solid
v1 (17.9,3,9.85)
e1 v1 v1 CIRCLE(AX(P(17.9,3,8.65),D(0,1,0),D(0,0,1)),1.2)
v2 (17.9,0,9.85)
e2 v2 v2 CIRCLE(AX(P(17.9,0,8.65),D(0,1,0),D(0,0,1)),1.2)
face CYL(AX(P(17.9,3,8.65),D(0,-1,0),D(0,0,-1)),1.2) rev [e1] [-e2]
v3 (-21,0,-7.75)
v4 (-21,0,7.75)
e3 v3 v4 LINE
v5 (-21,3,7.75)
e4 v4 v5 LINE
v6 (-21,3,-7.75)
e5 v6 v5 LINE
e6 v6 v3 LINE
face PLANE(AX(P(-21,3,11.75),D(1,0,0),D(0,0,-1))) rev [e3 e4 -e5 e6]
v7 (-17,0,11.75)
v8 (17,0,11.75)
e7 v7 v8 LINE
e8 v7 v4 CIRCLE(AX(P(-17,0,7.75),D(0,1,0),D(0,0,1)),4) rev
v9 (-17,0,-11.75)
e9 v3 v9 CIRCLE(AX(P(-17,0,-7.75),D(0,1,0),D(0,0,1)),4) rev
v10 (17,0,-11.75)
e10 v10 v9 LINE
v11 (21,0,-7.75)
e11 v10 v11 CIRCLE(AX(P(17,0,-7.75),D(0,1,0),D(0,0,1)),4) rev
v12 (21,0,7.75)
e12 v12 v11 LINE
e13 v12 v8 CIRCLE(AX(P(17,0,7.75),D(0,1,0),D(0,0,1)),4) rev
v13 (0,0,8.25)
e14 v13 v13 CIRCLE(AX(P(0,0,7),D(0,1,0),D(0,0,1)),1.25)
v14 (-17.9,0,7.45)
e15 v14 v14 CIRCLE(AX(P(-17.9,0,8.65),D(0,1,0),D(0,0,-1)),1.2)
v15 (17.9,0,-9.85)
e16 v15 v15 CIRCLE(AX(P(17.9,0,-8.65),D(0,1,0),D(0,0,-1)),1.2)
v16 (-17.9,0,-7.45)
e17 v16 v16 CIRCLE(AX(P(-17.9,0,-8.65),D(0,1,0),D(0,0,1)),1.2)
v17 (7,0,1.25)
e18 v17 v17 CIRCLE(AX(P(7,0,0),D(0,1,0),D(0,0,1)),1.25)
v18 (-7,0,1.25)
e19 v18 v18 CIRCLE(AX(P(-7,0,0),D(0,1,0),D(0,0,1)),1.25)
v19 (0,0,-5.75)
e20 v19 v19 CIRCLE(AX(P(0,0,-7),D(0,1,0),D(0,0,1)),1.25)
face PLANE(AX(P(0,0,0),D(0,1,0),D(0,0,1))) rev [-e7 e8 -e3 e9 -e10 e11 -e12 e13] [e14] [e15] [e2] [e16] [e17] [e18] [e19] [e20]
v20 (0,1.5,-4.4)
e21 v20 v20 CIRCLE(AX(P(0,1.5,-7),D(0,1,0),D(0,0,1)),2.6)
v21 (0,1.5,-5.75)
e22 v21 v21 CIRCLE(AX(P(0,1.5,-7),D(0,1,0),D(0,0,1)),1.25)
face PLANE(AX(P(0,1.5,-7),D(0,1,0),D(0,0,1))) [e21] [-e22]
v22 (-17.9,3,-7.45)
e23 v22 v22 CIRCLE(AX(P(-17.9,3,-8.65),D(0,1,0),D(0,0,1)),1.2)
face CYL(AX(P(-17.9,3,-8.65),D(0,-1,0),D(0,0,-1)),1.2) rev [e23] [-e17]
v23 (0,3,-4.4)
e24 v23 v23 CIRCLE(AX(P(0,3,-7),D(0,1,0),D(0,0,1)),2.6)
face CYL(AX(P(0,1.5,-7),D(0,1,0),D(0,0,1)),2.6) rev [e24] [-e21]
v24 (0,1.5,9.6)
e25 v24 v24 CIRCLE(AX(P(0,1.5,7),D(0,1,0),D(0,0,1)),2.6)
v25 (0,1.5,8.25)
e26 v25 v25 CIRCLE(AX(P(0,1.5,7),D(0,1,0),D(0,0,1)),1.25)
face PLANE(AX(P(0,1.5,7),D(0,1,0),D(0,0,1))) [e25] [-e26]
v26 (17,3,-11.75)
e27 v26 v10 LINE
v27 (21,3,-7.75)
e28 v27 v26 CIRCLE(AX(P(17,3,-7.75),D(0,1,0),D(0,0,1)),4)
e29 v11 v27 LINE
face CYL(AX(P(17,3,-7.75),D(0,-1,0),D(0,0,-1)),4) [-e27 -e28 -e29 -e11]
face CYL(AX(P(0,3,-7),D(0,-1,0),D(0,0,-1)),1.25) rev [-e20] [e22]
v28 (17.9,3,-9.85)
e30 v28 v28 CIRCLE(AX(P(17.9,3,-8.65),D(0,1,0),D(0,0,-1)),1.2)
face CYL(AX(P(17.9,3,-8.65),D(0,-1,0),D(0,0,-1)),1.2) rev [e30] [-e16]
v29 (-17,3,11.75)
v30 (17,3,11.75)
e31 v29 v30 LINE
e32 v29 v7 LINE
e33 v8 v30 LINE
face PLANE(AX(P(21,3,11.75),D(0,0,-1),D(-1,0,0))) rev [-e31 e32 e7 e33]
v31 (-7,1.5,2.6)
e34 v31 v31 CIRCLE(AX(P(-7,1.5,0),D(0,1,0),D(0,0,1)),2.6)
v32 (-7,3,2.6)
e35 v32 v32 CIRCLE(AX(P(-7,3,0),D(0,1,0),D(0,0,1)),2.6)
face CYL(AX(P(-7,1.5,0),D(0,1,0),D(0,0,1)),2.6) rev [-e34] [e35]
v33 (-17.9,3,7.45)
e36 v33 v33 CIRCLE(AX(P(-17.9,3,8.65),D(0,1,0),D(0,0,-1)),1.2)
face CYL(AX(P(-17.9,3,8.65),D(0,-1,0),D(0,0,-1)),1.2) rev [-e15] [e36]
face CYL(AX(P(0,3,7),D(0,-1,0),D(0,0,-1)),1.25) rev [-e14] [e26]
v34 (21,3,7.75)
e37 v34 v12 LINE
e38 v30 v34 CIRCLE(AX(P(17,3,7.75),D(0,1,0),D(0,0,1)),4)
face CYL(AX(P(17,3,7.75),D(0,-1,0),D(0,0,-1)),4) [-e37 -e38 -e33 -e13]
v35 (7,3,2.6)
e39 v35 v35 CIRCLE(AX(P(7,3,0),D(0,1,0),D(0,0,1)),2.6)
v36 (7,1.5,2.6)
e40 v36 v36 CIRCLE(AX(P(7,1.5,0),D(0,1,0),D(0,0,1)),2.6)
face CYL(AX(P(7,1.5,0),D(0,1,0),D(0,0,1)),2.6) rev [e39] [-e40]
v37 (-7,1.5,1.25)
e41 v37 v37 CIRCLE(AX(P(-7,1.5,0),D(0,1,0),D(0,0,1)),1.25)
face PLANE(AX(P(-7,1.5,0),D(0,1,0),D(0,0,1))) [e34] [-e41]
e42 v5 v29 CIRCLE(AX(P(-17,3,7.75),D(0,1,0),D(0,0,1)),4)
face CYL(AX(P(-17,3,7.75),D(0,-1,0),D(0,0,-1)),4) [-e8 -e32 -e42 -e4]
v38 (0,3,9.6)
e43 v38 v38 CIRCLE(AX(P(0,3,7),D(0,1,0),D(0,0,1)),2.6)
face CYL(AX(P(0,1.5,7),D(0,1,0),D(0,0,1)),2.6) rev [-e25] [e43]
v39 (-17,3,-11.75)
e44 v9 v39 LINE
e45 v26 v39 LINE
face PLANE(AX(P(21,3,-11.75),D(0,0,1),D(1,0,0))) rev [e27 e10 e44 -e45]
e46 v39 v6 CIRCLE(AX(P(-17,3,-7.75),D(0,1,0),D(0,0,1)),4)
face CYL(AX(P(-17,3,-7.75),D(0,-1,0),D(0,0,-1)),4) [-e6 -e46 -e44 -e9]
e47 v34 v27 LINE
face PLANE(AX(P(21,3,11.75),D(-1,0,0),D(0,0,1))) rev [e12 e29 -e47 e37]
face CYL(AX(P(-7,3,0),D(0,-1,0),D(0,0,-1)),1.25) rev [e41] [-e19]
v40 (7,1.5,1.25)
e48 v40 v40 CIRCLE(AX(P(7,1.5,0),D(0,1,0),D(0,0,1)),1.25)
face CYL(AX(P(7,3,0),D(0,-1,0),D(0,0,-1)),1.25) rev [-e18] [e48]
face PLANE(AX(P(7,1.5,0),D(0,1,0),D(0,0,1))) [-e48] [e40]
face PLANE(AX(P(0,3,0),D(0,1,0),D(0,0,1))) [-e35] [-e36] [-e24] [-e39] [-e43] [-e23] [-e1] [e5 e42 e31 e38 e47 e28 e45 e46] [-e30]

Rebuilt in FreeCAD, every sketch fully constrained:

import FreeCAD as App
import Part
import Sketcher
Q = App.Units.Quantity


def edges_at(feature, points):
    """Names of the edges that pass closest to the given points."""
    edges = feature.Shape.Edges
    near = lambda p: min(range(len(edges)), key=lambda i: edges[i].distToShape(Part.Vertex(*p))[0])
    return sorted({f"Edge{near(p) + 1}" for p in points})

doc = App.newDocument("Part")
params = doc.addObject("Spreadsheet::Sheet", "Params")
for row, (alias, value) in enumerate([
    ("sketch1_diameter", "2.4 mm"),
    ("sketch1_diameter2", "2.5 mm"),
    ("sketch1_width", "42 mm"),
    ("sketch1_height", "23.5 mm"),
    ("pad1_length", "3 mm"),
    ("fillet_radius", "4 mm"),
    ("sketch2_diameter", "5.2 mm"),
    ("pocket1_length", "1.5 mm"),
], start=1):
    params.set(f"A{row}", alias)
    params.set(f"B{row}", "=" + value)
    params.setAlias(f"B{row}", alias)

body = doc.addObject("PartDesign::Body", "Body")

# Sketch on XZ plane
sketch1 = body.newObject("Sketcher::SketchObject", "Sketch")
sketch1.AttachmentSupport = (doc.getObject("XZ_Plane"), [""])
sketch1.MapMode = "FlatFace"
sketch1.addGeometry([
    Part.LineSegment(App.Vector(-21, -11.75, 0), App.Vector(-21, 11.75, 0)),  # 0
    Part.LineSegment(App.Vector(-21, 11.75, 0), App.Vector(21, 11.75, 0)),  # 1
    Part.LineSegment(App.Vector(21, 11.75, 0), App.Vector(21, -11.75, 0)),  # 2
    Part.LineSegment(App.Vector(21, -11.75, 0), App.Vector(-21, -11.75, 0)),  # 3
    Part.Circle(App.Vector(-17.9, 8.65, 0), App.Vector(0, 0, 1), 1.2),  # 4
    Part.Circle(App.Vector(0, 7, 0), App.Vector(0, 0, 1), 1.25),  # 5
    Part.Circle(App.Vector(17.9, 8.65, 0), App.Vector(0, 0, 1), 1.2),  # 6
    Part.Circle(App.Vector(-7, 0, 0), App.Vector(0, 0, 1), 1.25),  # 7
    Part.Circle(App.Vector(-17.9, -8.65, 0), App.Vector(0, 0, 1), 1.2),  # 8
    Part.Circle(App.Vector(7, 0, 0), App.Vector(0, 0, 1), 1.25),  # 9
    Part.Circle(App.Vector(0, -7, 0), App.Vector(0, 0, 1), 1.25),  # 10
    Part.Circle(App.Vector(17.9, -8.65, 0), App.Vector(0, 0, 1), 1.2),  # 11
], False)
sketch1.addConstraint([
    Sketcher.Constraint("Coincident", 0, 2, 1, 1),
    Sketcher.Constraint("Coincident", 1, 2, 2, 1),
    Sketcher.Constraint("Coincident", 2, 2, 3, 1),
    Sketcher.Constraint("Coincident", 3, 2, 0, 1),
    Sketcher.Constraint("Vertical", 0),
    Sketcher.Constraint("Horizontal", 1),
    Sketcher.Constraint("Vertical", 2),
    Sketcher.Constraint("Horizontal", 3),
    Sketcher.Constraint("Equal", 4, 6),
    Sketcher.Constraint("Equal", 5, 7),
    Sketcher.Constraint("Equal", 6, 8),
    Sketcher.Constraint("Equal", 7, 9),
    Sketcher.Constraint("Equal", 9, 10),
    Sketcher.Constraint("Equal", 8, 11),
    Sketcher.Constraint("Symmetric", 6, 3, 8, 3, -1, 1),
    Sketcher.Constraint("Symmetric", 7, 3, 9, 3, -1, 1),
    Sketcher.Constraint("Symmetric", 5, 3, 10, 3, -1, 1),
    Sketcher.Constraint("Symmetric", 4, 3, 11, 3, -1, 1),
    Sketcher.Constraint("Symmetric", 0, 2, 2, 2, -1, 1),
    Sketcher.Constraint("Symmetric", 4, 3, 6, 3, -2),
    Sketcher.Constraint("PointOnObject", 5, 3, -2),
    Sketcher.Constraint("PointOnObject", 7, 3, -1),
    Sketcher.Constraint("Diameter", 4, Q("2.4 mm")),
    Sketcher.Constraint("Diameter", 5, Q("2.5 mm")),
    Sketcher.Constraint("DistanceX", 1, 1, 1, 2, Q("42 mm")),
    Sketcher.Constraint("DistanceY", 0, 1, 0, 2, Q("23.5 mm")),
    Sketcher.Constraint("DistanceY", -1, 1, 5, 3, Q("7 mm")),
    Sketcher.Constraint("DistanceX", 7, 3, -1, 1, Q("7 mm")),
    Sketcher.Constraint("DistanceX", 4, 3, -1, 1, Q("17.9 mm")),
    Sketcher.Constraint("DistanceY", 8, 3, 4, 3, Q("17.3 mm")),
])
sketch1.setExpression("Constraints[22]", "Params.sketch1_diameter")
sketch1.setExpression("Constraints[23]", "Params.sketch1_diameter2")
sketch1.setExpression("Constraints[24]", "Params.sketch1_width")
sketch1.setExpression("Constraints[25]", "Params.sketch1_height")
pad1 = body.newObject("PartDesign::Pad", "Pad")
pad1.Profile = sketch1
pad1.setExpression("Length", "Params.pad1_length")
pad1.Reversed = True
doc.recompute()

fillet = body.newObject("PartDesign::Fillet", "Fillet")
fillet.Base = (pad1, edges_at(pad1, [
    (-21, 1.5, -11.75),
    (21, 1.5, -11.75),
    (21, 1.5, 11.75),
    (-21, 1.5, 11.75),
]))
fillet.setExpression("Radius", "Params.fillet_radius")

# Sketch on XZ plane
sketch2 = body.newObject("Sketcher::SketchObject", "Sketch001")
sketch2.AttachmentSupport = (doc.getObject("XZ_Plane"), [""])
sketch2.MapMode = "FlatFace"
sketch2.AttachmentOffset = App.Placement(App.Vector(0, 0, -3), App.Rotation())
sketch2.addGeometry([
    Part.Circle(App.Vector(7, 0, 0), App.Vector(0, 0, 1), 2.6),
    Part.Circle(App.Vector(0, 7, 0), App.Vector(0, 0, 1), 2.6),
    Part.Circle(App.Vector(-7, 0, 0), App.Vector(0, 0, 1), 2.6),
    Part.Circle(App.Vector(0, -7, 0), App.Vector(0, 0, 1), 2.6),
], False)
sketch2.addConstraint([
    Sketcher.Constraint("Equal", 0, 1),
    Sketcher.Constraint("Equal", 1, 2),
    Sketcher.Constraint("Equal", 2, 3),
    Sketcher.Constraint("Symmetric", 0, 3, 2, 3, -1, 1),
    Sketcher.Constraint("Symmetric", 1, 3, 3, 3, -1, 1),
    Sketcher.Constraint("PointOnObject", 0, 3, -1),
    Sketcher.Constraint("PointOnObject", 1, 3, -2),
    Sketcher.Constraint("Diameter", 0, Q("5.2 mm")),
    Sketcher.Constraint("DistanceX", -1, 1, 0, 3, Q("7 mm")),
    Sketcher.Constraint("DistanceY", -1, 1, 1, 3, Q("7 mm")),
])
sketch2.setExpression("Constraints[7]", "Params.sketch2_diameter")
pocket1 = body.newObject("PartDesign::Pocket", "Pocket")
pocket1.Profile = sketch2
pocket1.setExpression("Length", "Params.pocket1_length")
pocket1.Reversed = True

doc.recompute()
